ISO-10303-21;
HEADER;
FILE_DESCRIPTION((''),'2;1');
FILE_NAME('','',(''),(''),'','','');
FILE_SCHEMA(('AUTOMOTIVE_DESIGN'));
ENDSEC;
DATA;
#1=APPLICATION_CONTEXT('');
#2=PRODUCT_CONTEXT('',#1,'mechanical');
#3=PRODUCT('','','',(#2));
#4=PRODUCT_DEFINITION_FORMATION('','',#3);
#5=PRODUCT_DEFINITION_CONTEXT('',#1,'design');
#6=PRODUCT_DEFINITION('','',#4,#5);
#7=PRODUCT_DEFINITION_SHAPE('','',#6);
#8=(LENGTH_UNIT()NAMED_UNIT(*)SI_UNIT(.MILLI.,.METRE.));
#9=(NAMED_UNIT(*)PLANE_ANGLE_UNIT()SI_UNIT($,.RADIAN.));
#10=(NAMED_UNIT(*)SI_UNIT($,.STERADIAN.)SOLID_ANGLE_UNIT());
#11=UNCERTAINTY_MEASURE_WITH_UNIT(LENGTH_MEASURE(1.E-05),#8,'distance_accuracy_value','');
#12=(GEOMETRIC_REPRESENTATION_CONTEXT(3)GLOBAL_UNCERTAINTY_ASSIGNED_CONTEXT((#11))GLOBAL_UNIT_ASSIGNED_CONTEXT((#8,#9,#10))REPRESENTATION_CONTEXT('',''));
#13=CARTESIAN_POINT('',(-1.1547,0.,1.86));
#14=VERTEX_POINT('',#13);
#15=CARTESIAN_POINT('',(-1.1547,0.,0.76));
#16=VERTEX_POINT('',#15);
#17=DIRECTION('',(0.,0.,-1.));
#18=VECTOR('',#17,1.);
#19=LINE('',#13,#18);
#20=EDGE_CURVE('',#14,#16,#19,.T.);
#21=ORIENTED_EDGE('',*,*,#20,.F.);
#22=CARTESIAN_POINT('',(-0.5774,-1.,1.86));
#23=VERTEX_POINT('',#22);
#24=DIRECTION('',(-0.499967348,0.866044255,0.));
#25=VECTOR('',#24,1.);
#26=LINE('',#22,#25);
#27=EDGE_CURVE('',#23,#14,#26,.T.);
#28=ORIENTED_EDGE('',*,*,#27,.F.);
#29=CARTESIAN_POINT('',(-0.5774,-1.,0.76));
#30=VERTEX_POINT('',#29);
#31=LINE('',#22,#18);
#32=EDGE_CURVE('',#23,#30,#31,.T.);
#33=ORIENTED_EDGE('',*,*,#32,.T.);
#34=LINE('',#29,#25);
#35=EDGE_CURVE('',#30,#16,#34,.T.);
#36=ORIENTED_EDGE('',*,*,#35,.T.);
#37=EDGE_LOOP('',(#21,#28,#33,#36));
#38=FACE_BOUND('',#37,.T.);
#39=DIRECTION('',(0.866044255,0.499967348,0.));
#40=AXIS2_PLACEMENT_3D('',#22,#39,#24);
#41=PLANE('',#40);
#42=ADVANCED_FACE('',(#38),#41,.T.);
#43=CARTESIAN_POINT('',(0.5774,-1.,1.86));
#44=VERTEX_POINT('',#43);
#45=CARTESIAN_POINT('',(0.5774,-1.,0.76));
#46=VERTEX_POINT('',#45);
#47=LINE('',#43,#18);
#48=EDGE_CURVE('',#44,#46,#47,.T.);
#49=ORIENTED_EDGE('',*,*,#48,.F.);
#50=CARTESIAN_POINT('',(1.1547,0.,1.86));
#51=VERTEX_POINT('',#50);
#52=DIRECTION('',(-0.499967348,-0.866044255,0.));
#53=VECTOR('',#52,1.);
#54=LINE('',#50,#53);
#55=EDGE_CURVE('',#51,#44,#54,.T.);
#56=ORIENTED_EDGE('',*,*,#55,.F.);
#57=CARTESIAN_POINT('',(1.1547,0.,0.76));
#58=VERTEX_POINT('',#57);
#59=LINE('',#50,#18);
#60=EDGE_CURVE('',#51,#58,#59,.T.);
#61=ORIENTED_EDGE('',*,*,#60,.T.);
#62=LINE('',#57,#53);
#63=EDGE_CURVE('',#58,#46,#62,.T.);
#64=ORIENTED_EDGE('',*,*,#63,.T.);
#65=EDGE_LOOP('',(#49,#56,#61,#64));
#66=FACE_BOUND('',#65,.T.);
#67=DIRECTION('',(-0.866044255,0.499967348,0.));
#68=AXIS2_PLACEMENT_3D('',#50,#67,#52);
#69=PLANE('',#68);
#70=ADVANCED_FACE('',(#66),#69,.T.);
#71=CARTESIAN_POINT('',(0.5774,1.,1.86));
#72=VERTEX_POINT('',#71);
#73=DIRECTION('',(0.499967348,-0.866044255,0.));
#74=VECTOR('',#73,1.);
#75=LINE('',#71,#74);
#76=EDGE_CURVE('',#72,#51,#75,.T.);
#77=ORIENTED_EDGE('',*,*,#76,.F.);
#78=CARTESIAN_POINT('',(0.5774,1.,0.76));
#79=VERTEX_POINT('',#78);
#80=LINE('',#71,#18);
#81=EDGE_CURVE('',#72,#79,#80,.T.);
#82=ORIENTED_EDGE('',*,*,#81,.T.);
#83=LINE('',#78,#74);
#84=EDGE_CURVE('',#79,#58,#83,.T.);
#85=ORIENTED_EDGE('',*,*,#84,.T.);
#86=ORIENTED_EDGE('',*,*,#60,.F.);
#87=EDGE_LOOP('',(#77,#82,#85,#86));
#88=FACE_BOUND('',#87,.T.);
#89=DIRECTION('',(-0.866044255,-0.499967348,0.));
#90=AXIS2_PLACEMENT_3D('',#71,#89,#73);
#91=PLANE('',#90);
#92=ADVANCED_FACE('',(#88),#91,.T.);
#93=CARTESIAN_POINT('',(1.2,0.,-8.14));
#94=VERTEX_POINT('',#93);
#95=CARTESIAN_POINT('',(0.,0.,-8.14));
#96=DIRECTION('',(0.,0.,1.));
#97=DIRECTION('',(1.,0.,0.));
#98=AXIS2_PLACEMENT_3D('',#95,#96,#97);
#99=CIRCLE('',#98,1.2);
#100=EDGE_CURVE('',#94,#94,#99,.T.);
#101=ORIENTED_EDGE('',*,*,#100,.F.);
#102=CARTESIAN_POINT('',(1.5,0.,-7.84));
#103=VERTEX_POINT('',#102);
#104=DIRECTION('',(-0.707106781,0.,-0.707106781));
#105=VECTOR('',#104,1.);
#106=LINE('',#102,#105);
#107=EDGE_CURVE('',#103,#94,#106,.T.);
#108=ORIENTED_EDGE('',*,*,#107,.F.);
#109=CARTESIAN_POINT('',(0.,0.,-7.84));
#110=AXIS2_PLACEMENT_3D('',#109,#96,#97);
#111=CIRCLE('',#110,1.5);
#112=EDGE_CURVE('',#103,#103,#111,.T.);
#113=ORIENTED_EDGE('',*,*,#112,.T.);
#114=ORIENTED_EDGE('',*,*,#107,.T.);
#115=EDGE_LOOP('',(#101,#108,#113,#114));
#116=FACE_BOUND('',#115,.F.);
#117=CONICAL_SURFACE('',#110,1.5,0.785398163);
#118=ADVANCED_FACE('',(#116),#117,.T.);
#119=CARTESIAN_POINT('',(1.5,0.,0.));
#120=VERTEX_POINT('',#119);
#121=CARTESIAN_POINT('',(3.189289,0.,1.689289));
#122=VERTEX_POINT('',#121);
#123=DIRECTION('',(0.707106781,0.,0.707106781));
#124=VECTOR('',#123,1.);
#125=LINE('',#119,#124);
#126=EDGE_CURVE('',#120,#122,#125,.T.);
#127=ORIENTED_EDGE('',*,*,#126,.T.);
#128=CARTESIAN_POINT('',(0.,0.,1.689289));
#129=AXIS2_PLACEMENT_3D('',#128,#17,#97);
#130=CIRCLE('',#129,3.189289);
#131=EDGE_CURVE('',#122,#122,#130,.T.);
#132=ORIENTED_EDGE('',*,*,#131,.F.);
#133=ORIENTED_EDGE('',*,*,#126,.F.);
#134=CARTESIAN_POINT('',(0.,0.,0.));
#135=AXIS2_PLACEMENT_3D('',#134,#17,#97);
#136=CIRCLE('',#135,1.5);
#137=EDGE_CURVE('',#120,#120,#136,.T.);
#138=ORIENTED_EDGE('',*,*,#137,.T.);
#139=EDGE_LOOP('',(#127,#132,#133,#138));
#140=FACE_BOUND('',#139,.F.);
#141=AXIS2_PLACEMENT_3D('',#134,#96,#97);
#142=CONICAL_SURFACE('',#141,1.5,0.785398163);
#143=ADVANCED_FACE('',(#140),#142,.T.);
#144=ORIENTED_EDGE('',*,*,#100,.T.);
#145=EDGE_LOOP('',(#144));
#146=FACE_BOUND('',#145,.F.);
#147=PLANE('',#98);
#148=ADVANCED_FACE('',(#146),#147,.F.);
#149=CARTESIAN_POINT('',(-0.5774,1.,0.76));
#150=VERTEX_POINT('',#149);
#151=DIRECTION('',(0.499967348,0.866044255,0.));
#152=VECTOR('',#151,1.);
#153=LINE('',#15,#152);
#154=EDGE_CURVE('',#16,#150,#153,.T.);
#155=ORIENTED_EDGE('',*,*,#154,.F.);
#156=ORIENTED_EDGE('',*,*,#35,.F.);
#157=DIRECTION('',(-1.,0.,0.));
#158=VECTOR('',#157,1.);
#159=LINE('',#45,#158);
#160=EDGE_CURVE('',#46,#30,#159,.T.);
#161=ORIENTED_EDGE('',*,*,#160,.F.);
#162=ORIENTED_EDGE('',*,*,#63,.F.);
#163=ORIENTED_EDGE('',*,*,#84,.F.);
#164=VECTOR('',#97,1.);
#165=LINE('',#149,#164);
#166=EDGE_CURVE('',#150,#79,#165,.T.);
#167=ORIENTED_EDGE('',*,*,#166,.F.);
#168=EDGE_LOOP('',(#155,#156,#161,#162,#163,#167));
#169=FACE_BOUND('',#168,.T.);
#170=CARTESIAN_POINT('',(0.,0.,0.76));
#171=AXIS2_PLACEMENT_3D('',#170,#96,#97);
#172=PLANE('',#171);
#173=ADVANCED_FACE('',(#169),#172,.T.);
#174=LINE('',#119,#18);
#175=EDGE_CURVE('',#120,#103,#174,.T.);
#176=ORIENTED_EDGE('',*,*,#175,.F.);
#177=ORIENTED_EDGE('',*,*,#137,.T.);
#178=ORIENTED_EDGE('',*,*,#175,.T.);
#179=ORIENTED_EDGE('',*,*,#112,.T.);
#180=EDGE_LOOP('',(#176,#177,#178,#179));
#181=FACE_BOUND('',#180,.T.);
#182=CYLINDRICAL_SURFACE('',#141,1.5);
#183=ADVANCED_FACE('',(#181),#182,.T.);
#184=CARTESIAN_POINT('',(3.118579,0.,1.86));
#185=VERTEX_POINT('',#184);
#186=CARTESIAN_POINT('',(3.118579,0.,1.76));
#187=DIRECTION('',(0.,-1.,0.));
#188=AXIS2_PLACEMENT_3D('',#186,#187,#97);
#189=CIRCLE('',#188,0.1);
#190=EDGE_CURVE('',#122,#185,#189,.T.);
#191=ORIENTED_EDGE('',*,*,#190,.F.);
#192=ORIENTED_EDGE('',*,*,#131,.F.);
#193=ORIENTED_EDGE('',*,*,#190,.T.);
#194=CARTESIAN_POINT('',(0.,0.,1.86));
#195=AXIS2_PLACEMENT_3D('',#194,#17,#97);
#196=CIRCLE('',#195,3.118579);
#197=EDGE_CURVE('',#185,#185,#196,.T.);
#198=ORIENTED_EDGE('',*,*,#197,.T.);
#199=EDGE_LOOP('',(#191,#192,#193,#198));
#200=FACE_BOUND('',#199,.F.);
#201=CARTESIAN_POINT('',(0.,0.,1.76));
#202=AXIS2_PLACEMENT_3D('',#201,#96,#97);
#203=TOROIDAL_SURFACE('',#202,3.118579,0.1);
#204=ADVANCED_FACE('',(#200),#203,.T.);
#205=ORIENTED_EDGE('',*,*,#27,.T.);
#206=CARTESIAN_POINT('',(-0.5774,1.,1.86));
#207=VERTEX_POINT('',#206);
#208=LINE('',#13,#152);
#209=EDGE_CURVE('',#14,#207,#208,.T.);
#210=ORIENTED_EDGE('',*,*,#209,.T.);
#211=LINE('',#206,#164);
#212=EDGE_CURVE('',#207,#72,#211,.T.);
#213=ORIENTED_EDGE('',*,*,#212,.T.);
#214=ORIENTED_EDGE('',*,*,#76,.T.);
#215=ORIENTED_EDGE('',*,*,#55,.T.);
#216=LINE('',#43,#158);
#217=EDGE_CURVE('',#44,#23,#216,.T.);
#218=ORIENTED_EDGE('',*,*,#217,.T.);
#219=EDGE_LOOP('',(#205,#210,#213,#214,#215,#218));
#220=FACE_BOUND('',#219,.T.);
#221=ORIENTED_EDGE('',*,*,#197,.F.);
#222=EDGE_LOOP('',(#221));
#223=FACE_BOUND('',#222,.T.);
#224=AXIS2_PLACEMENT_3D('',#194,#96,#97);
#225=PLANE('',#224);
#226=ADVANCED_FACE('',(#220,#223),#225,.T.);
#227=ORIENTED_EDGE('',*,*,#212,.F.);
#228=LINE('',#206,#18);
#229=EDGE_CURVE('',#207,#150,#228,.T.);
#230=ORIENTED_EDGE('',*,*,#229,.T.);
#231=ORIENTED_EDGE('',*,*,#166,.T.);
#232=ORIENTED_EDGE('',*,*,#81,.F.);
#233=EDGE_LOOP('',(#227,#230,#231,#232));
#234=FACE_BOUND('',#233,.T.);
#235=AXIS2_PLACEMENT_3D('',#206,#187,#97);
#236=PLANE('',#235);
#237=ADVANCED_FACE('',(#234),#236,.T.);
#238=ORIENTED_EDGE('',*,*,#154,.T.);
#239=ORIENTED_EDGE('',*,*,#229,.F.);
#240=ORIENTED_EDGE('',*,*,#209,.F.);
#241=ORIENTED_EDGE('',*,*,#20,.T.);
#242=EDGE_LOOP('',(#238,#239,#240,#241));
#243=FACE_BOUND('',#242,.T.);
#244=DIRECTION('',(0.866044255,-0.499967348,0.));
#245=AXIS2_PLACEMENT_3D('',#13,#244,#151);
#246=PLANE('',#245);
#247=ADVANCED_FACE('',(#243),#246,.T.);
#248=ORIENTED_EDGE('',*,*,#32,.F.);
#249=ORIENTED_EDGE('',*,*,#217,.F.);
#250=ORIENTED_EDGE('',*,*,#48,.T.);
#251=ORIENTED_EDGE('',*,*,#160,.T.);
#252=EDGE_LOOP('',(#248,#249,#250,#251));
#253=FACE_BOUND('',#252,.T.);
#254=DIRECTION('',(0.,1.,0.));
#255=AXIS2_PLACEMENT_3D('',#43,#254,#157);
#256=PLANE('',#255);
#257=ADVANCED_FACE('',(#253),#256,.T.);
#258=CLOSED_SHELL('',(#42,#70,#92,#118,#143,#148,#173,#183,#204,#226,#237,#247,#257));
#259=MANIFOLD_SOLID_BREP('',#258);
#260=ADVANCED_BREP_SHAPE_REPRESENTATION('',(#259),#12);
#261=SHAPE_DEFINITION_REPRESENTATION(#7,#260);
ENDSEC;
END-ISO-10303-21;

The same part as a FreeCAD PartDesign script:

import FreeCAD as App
import Part
import Sketcher
from FreeCAD import Vector
Q = App.Units.Quantity


def edges_at(feature, points):
    """Names of the edges that pass closest to the given points."""
    edges = feature.Shape.Edges
    near = lambda p: min(range(len(edges)), key=lambda i: edges[i].distToShape(Part.Vertex(*p))[0])
    return sorted({f"Edge{near(p) + 1}" for p in points})


def add_polygon(sketch, points):
    """Adds a closed chain of lines whose ends are joined by coincident constraints."""
    first, n = sketch.GeometryCount, len(points)
    for a, b in zip(points, points[1:] + points[:1]):
        sketch.addGeometry(Part.LineSegment(App.Vector(*a, 0), App.Vector(*b, 0)), False)
    for i in range(n):
        sketch.addConstraint(Sketcher.Constraint("Coincident", first + i, 2, first + (i + 1) % n, 1))

doc = App.newDocument("Part")
body = doc.addObject("PartDesign::Body", "Body")

# Sketch on XY plane
sketch1 = body.newObject("Sketcher::SketchObject", "Sketch")
sketch1.AttachmentSupport = (doc.getObject("XY_Plane"), [""])
sketch1.MapMode = "FlatFace"
sketch1.addGeometry(Part.Circle(Vector(0, 0, 0), Vector(0, 0, 1), 1.5), False)
sketch1.addConstraint([
    Sketcher.Constraint("Coincident", 0, 3, -1, 1),
    Sketcher.Constraint("Diameter", 0, Q("3 mm")),
])
pad1 = body.newObject("PartDesign::Pad", "Pad")
pad1.Profile = sketch1
pad1.Length = 8.14
pad1.Reversed = True

# Sketch on XY plane
sketch2 = body.newObject("Sketcher::SketchObject", "Sketch001")
sketch2.AttachmentSupport = (doc.getObject("XY_Plane"), [""])
sketch2.MapMode = "FlatFace"
sketch2.addGeometry(Part.Circle(Vector(0, 0, 0), Vector(0, 0, 1), 1.5), False)
sketch2.addConstraint([
    Sketcher.Constraint("Coincident", 0, 3, -1, 1),
    Sketcher.Constraint("Diameter", 0, Q("3 mm")),
])
pad2 = body.newObject("PartDesign::Pad", "Pad001")
pad2.Profile = sketch2
pad2.Length = 1.86
pad2.TaperAngle = 45

# Sketch on XY plane
sketch3 = body.newObject("Sketcher::SketchObject", "Sketch002")
sketch3.AttachmentSupport = (doc.getObject("XY_Plane"), [""])
sketch3.MapMode = "FlatFace"
sketch3.AttachmentOffset = App.Placement(Vector(0, 0, 1.86), App.Rotation())
add_polygon(sketch3, [(1.2, 0), (0.6, 1), (-0.6, 1), (-1.2, 0), (-0.6, -1), (0.6, -1)])  # lines 0-5
sketch3.addConstraint([
    Sketcher.Constraint("Horizontal", 1),
    Sketcher.Constraint("Horizontal", 4),
    Sketcher.Constraint("Symmetric", 0, 2, 3, 2, -1, 1),
    Sketcher.Constraint("Symmetric", 2, 2, 5, 2, -1, 1),
    Sketcher.Constraint("PointOnObject", 2, 2, -1),
    Sketcher.Constraint("Parallel", 2, 5),
    Sketcher.Constraint("Vertical", 1, 2, 3, 2),
    Sketcher.Constraint("DistanceY", 3, 2, 1, 2, Q("2 mm")),
    Sketcher.Constraint("DistanceX", 1, 2, 1, 1, Q("1.1548 mm")),
    Sketcher.Constraint("DistanceX", 2, 2, 0, 2, Q("1.732 mm")),
])
pocket1 = body.newObject("PartDesign::Pocket", "Pocket")
pocket1.Profile = sketch3
pocket1.Length = 1.1
doc.recompute()

chamfer = body.newObject("PartDesign::Chamfer", "Chamfer")
chamfer.Base = (pocket1, edges_at(pocket1, [(-1.5, 0, -8.14)]))
chamfer.Size = 0.3
doc.recompute()

fillet = body.newObject("PartDesign::Fillet", "Fillet")
fillet.Base = (chamfer, edges_at(chamfer, [(-3.36, 0, 1.86)]))
fillet.Radius = 0.1

doc.recompute()
